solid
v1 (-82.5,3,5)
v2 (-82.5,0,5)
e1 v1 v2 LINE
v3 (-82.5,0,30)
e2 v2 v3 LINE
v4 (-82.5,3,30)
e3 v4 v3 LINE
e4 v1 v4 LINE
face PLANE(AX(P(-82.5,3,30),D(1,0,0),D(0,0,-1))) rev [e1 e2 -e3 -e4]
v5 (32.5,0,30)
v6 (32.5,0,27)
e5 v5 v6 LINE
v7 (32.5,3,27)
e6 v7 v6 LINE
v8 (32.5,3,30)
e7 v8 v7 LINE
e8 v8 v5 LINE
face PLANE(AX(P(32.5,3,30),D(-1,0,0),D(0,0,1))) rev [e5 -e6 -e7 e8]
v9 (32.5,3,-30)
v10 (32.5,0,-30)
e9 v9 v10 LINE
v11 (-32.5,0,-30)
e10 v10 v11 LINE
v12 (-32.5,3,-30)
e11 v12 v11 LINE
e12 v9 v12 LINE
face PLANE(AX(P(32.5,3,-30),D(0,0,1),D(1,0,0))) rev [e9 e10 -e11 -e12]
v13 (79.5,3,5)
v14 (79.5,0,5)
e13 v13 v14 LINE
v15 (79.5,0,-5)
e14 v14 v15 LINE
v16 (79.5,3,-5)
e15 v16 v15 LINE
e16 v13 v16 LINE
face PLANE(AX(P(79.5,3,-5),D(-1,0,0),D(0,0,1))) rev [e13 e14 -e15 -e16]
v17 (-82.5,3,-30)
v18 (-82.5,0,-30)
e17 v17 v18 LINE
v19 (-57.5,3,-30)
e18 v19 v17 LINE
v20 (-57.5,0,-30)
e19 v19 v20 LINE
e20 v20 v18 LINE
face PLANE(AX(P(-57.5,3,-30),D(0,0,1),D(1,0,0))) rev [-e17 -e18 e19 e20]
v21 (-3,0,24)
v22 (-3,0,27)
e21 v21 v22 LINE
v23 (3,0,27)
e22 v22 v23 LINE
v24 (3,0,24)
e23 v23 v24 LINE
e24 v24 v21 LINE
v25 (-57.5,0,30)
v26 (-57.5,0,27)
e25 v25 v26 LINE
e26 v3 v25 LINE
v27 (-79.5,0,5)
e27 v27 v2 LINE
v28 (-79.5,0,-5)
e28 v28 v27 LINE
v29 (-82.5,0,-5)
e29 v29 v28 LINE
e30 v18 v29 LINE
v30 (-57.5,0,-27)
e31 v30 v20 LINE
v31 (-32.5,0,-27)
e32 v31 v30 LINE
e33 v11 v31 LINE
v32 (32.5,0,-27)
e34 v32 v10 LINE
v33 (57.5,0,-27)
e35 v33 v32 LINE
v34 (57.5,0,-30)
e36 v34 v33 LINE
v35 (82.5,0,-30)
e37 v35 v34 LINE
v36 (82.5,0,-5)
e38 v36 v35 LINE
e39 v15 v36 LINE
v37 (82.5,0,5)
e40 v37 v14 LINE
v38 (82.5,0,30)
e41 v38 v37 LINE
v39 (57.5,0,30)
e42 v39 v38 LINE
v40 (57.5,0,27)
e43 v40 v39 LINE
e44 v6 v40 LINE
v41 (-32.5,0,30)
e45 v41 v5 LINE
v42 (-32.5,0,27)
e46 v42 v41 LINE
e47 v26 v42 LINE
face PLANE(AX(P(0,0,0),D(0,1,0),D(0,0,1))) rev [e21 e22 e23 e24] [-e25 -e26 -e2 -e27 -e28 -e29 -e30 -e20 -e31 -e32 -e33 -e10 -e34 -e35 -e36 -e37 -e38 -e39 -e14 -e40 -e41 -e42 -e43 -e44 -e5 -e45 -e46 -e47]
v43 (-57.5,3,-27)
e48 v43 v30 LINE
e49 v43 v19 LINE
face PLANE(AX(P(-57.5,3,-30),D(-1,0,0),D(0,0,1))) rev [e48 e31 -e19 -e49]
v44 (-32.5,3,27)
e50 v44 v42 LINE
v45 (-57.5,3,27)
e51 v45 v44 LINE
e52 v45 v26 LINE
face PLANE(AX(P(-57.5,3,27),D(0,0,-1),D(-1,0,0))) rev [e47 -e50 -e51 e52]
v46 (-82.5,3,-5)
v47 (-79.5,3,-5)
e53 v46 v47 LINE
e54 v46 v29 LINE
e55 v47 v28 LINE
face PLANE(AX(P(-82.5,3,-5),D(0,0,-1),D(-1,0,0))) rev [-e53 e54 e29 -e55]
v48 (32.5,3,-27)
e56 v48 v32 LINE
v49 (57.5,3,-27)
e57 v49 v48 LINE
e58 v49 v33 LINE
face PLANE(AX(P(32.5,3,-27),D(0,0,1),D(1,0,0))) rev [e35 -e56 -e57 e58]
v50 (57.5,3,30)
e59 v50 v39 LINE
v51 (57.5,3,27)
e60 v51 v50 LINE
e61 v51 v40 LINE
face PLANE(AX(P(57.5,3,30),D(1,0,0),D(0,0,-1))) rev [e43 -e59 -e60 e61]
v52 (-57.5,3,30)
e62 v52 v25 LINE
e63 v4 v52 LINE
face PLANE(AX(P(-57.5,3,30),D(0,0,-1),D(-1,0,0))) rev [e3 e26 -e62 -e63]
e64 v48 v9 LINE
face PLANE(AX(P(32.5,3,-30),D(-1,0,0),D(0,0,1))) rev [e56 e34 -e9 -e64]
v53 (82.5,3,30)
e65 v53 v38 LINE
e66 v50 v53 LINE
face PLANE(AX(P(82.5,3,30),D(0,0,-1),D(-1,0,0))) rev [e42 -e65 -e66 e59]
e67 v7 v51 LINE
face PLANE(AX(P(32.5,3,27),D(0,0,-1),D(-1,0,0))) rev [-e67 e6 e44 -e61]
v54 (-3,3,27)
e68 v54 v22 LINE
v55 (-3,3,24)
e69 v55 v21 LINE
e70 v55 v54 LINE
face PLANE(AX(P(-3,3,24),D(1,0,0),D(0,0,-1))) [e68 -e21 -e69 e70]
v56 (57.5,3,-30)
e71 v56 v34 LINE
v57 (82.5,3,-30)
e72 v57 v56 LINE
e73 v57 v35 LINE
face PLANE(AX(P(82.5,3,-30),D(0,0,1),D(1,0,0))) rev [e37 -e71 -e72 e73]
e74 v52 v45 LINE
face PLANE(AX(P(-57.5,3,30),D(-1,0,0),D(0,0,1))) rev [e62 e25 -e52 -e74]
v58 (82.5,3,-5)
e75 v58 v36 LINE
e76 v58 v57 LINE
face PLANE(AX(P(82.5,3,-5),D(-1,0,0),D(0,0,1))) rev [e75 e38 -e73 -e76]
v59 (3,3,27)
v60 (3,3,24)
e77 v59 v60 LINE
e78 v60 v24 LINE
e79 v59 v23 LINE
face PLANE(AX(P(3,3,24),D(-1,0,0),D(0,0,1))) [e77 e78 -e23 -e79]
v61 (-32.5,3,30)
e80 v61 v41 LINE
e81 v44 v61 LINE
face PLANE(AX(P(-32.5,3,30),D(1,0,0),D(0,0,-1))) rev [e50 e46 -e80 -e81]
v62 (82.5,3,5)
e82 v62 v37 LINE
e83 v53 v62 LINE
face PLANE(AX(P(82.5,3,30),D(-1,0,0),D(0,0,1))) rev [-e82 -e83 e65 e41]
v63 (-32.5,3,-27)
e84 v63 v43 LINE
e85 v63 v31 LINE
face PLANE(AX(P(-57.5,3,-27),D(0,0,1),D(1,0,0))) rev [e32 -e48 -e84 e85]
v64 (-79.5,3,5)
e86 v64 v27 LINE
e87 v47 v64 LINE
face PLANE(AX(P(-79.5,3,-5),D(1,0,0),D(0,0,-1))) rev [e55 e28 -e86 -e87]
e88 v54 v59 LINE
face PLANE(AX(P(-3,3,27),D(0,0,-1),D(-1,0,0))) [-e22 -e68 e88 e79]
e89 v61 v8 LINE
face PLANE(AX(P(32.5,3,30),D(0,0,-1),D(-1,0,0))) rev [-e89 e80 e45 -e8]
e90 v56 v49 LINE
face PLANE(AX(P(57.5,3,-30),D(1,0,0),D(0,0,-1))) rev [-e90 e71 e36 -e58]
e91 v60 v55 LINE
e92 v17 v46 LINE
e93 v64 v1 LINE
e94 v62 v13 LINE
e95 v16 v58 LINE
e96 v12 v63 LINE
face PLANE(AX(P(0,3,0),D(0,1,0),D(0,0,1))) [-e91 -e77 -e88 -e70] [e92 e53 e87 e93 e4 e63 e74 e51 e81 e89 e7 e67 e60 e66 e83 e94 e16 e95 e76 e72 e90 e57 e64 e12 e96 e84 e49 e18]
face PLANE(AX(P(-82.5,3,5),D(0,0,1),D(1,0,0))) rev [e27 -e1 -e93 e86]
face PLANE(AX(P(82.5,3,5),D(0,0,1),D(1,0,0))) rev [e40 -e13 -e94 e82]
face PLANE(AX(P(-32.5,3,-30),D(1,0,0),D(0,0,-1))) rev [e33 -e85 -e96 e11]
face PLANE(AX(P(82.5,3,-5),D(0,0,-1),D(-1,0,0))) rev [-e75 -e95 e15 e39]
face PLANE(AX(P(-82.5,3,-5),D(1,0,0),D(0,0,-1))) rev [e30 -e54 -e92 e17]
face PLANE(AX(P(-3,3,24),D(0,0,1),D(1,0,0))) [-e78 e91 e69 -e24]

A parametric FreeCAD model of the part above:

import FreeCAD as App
import Part
import Sketcher
Q = App.Units.Quantity

doc = App.newDocument("Part")
body = doc.addObject("PartDesign::Body", "Body")

sketch1 = body.newObject("Sketcher::SketchObject", "Sketch")
sketch1.AttachmentSupport = (doc.getObject("XZ_Plane"), [""])
sketch1.MapMode = "FlatFace"
sketch1.addGeometry([
    Part.LineSegment(App.Vector(-57.5, -30, 0), App.Vector(-82.5, -30, 0)),
    Part.LineSegment(App.Vector(-82.5, -30, 0), App.Vector(-82.5, -5, 0)),
    Part.LineSegment(App.Vector(-82.5, -5, 0), App.Vector(-79.5, -5, 0)),
    Part.LineSegment(App.Vector(-79.5, -5, 0), App.Vector(-79.5, 5, 0)),
    Part.LineSegment(App.Vector(-79.5, 5, 0), App.Vector(-82.5, 5, 0)),
    Part.LineSegment(App.Vector(-82.5, 5, 0), App.Vector(-82.5, 30, 0)),
    Part.LineSegment(App.Vector(-82.5, 30, 0), App.Vector(-57.5, 30, 0)),
    Part.LineSegment(App.Vector(-57.5, 30, 0), App.Vector(-57.5, 27, 0)),
    Part.LineSegment(App.Vector(-57.5, 27, 0), App.Vector(-32.5, 27, 0)),
    Part.LineSegment(App.Vector(-32.5, 27, 0), App.Vector(-32.5, 30, 0)),
    Part.LineSegment(App.Vector(-32.5, 30, 0), App.Vector(32.5, 30, 0)),
    Part.LineSegment(App.Vector(32.5, 30, 0), App.Vector(32.5, 27, 0)),
    Part.LineSegment(App.Vector(32.5, 27, 0), App.Vector(57.5, 27, 0)),
    Part.LineSegment(App.Vector(57.5, 27, 0), App.Vector(57.5, 30, 0)),
    Part.LineSegment(App.Vector(57.5, 30, 0), App.Vector(82.5, 30, 0)),
    Part.LineSegment(App.Vector(82.5, 30, 0), App.Vector(82.5, 5, 0)),
    Part.LineSegment(App.Vector(82.5, 5, 0), App.Vector(79.5, 5, 0)),
    Part.LineSegment(App.Vector(79.5, 5, 0), App.Vector(79.5, -5, 0)),
    Part.LineSegment(App.Vector(79.5, -5, 0), App.Vector(82.5, -5, 0)),
    Part.LineSegment(App.Vector(82.5, -5, 0), App.Vector(82.5, -30, 0)),
    Part.LineSegment(App.Vector(82.5, -30, 0), App.Vector(57.5, -30, 0)),
    Part.LineSegment(App.Vector(57.5, -30, 0), App.Vector(57.5, -27, 0)),
    Part.LineSegment(App.Vector(57.5, -27, 0), App.Vector(32.5, -27, 0)),
    Part.LineSegment(App.Vector(32.5, -27, 0), App.Vector(32.5, -30, 0)),
    Part.LineSegment(App.Vector(32.5, -30, 0), App.Vector(-32.5, -30, 0)),
    Part.LineSegment(App.Vector(-32.5, -30, 0), App.Vector(-32.5, -27, 0)),
    Part.LineSegment(App.Vector(-32.5, -27, 0), App.Vector(-57.5, -27, 0)),
    Part.LineSegment(App.Vector(-57.5, -27, 0), App.Vector(-57.5, -30, 0)),
    Part.LineSegment(App.Vector(3, 27, 0), App.Vector(-3, 27, 0)),
    Part.LineSegment(App.Vector(-3, 27, 0), App.Vector(-3, 24, 0)),
    Part.LineSegment(App.Vector(-3, 24, 0), App.Vector(3, 24, 0)),
    Part.LineSegment(App.Vector(3, 24, 0), App.Vector(3, 27, 0)),
], False)
sketch1.addConstraint([
    Sketcher.Constraint("Coincident", 0, 2, 1, 1),
    Sketcher.Constraint("Coincident", 1, 2, 2, 1),
    Sketcher.Constraint("Coincident", 2, 2, 3, 1),
    Sketcher.Constraint("Coincident", 3, 2, 4, 1),
    Sketcher.Constraint("Coincident", 4, 2, 5, 1),
    Sketcher.Constraint("Coincident", 5, 2, 6, 1),
    Sketcher.Constraint("Coincident", 6, 2, 7, 1),
    Sketcher.Constraint("Coincident", 7, 2, 8, 1),
    Sketcher.Constraint("Coincident", 8, 2, 9, 1),
    Sketcher.Constraint("Coincident", 9, 2, 10, 1),
    Sketcher.Constraint("Coincident", 10, 2, 11, 1),
    Sketcher.Constraint("Coincident", 11, 2, 12, 1),
    Sketcher.Constraint("Coincident", 12, 2, 13, 1),
    Sketcher.Constraint("Coincident", 13, 2, 14, 1),
    Sketcher.Constraint("Coincident", 14, 2, 15, 1),
    Sketcher.Constraint("Coincident", 15, 2, 16, 1),
    Sketcher.Constraint("Coincident", 16, 2, 17, 1),
    Sketcher.Constraint("Coincident", 17, 2, 18, 1),
    Sketcher.Constraint("Coincident", 18, 2, 19, 1),
    Sketcher.Constraint("Coincident", 19, 2, 20, 1),
    Sketcher.Constraint("Coincident", 20, 2, 21, 1),
    Sketcher.Constraint("Coincident", 21, 2, 22, 1),
    Sketcher.Constraint("Coincident", 22, 2, 23, 1),
    Sketcher.Constraint("Coincident", 23, 2, 24, 1),
    Sketcher.Constraint("Coincident", 24, 2, 25, 1),
    Sketcher.Constraint("Coincident", 25, 2, 26, 1),
    Sketcher.Constraint("Coincident", 26, 2, 27, 1),
    Sketcher.Constraint("Coincident", 27, 2, 0, 1),
    Sketcher.Constraint("Coincident", 28, 2, 29, 1),
    Sketcher.Constraint("Coincident", 29, 2, 30, 1),
    Sketcher.Constraint("Coincident", 30, 2, 31, 1),
    Sketcher.Constraint("Coincident", 31, 2, 28, 1),
    Sketcher.Constraint("Horizontal", 0),
    Sketcher.Constraint("Vertical", 1),
    Sketcher.Constraint("Horizontal", 2),
    Sketcher.Constraint("Vertical", 3),
    Sketcher.Constraint("Horizontal", 4),
    Sketcher.Constraint("Vertical", 5),
    Sketcher.Constraint("Horizontal", 6),
    Sketcher.Constraint("Vertical", 7),
    Sketcher.Constraint("Horizontal", 8),
    Sketcher.Constraint("Vertical", 9),
    Sketcher.Constraint("Horizontal", 10),
    Sketcher.Constraint("Vertical", 11),
    Sketcher.Constraint("Horizontal", 12),
    Sketcher.Constraint("Vertical", 13),
    Sketcher.Constraint("Horizontal", 14),
    Sketcher.Constraint("Vertical", 15),
    Sketcher.Constraint("Horizontal", 16),
    Sketcher.Constraint("Vertical", 17),
    Sketcher.Constraint("Horizontal", 18),
    Sketcher.Constraint("Vertical", 19),
    Sketcher.Constraint("Horizontal", 20),
    Sketcher.Constraint("Vertical", 21),
    Sketcher.Constraint("Horizontal", 22),
    Sketcher.Constraint("Vertical", 23),
    Sketcher.Constraint("Horizontal", 24),
    Sketcher.Constraint("Vertical", 25),
    Sketcher.Constraint("Horizontal", 26),
    Sketcher.Constraint("Vertical", 27),
    Sketcher.Constraint("Horizontal", 28),
    Sketcher.Constraint("Vertical", 29),
    Sketcher.Constraint("Horizontal", 30),
    Sketcher.Constraint("Vertical", 31),
    Sketcher.Constraint("Symmetric", 0, 2, 14, 2, -1, 1),
    Sketcher.Constraint("Symmetric", 2, 2, 16, 2, -1, 1),
    Sketcher.Constraint("Symmetric", 4, 2, 18, 2, -1, 1),
    Sketcher.Constraint("Symmetric", 6, 2, 20, 2, -1, 1),
    Sketcher.Constraint("Symmetric", 8, 2, 22, 2, -1, 1),
    Sketcher.Constraint("Symmetric", 10, 2, 24, 2, -1, 1),
    Sketcher.Constraint("Symmetric", 12, 2, 26, 2, -1, 1),
    Sketcher.Constraint("Symmetric", 8, 2, 11, 2, -2),
    Sketcher.Constraint("Symmetric", 6, 2, 13, 2, -2),
    Sketcher.Constraint("Symmetric", 4, 2, 15, 2, -2),
    Sketcher.Constraint("Horizontal", 6, 2, 9, 2),
    Sketcher.Constraint("Horizontal", 12, 2, 28, 2),
    Sketcher.Constraint("Equal", 6, 8),
    Sketcher.Constraint("Equal", 26, 1),
    Sketcher.Constraint("Equal", 18, 7),
    Sketcher.Constraint("Equal", 27, 29),
    Sketcher.Constraint("DistanceX", 0, 2, 0, 1, Q("25 mm")),
    Sketcher.Constraint("DistanceX", 2, 1, 2, 2, Q("3 mm")),
    Sketcher.Constraint("DistanceX", 10, 1, 10, 2, Q("65 mm")),
    Sketcher.Constraint("DistanceX", 28, 2, 28, 1, Q("6 mm")),
    Sketcher.Constraint("DistanceY", 3, 1, 3, 2, Q("10 mm")),
    Sketcher.Constraint("DistanceX", 28, 2, -1, 1, Q("3 mm")),
])
pad1 = body.newObject("PartDesign::Pad", "Pad")
pad1.Profile = sketch1
pad1.Length = 3
pad1.Reversed = True

doc.recompute()
